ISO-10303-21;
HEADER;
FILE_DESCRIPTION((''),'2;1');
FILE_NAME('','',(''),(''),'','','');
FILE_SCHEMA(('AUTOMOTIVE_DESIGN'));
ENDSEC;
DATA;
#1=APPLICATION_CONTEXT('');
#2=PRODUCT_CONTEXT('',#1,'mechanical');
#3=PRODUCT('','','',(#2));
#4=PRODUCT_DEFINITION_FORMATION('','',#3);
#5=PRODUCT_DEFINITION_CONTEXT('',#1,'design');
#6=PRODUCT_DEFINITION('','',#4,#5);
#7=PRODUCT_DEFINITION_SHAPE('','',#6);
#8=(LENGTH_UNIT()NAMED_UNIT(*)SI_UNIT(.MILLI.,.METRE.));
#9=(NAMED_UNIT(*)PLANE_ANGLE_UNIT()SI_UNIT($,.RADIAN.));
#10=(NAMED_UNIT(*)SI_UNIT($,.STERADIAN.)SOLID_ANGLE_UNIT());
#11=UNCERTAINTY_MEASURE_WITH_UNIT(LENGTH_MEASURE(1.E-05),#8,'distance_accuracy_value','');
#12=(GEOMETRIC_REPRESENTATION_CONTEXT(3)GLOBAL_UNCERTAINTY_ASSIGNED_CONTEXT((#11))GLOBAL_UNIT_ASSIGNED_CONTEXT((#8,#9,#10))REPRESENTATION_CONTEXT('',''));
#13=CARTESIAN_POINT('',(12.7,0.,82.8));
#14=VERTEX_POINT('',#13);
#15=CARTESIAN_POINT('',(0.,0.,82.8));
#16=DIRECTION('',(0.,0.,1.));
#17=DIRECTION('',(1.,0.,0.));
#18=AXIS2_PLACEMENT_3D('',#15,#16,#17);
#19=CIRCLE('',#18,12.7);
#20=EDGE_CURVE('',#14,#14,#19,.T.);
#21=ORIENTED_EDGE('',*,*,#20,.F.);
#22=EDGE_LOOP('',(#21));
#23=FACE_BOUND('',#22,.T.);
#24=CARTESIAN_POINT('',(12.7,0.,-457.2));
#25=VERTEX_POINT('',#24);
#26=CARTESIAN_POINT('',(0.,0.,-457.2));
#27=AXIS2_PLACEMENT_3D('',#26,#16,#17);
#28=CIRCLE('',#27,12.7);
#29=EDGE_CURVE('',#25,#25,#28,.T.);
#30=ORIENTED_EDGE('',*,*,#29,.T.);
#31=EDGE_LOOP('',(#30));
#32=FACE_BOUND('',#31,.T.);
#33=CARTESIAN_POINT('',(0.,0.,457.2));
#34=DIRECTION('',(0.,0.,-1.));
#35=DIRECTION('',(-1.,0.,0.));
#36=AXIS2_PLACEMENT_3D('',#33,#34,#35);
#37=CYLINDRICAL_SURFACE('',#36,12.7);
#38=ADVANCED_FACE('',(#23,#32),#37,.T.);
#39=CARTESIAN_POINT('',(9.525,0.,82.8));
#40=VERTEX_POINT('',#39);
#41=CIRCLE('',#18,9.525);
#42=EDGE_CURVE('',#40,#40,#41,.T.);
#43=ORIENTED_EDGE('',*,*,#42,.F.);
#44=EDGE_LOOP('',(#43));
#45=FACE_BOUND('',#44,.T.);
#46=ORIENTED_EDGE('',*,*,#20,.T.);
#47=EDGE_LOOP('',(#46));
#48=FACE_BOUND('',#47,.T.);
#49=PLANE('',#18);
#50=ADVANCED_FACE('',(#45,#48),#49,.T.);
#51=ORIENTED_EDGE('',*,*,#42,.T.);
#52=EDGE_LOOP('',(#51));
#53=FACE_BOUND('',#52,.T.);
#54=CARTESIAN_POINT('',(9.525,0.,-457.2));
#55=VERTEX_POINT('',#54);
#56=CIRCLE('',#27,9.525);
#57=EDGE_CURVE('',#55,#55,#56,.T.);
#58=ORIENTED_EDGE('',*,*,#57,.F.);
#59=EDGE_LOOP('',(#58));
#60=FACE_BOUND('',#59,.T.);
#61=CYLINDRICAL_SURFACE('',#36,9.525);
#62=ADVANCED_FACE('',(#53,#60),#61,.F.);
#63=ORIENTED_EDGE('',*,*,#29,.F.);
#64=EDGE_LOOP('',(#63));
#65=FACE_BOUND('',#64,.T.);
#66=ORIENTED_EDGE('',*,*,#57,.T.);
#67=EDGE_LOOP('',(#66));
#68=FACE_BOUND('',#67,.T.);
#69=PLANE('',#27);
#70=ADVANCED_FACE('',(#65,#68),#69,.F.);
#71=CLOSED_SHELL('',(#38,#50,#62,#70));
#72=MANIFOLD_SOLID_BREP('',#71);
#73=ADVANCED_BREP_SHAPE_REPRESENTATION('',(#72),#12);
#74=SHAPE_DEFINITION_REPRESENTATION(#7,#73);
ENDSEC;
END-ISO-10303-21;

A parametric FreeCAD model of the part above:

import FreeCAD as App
import Part
import Sketcher
from FreeCAD import Vector
Q = App.Units.Quantity

doc = App.newDocument("Part")
body = doc.addObject("PartDesign::Body", "Body")

# Sketch on XY plane
sketch1 = body.newObject("Sketcher::SketchObject", "Sketch")
sketch1.AttachmentSupport = (doc.getObject("XY_Plane"), [""])
sketch1.MapMode = "FlatFace"
sketch1.addGeometry([
    Part.Circle(Vector(0, 0, 0), Vector(0, 0, 1), 13),
    Part.Circle(Vector(0, 0, 0), Vector(0, 0, 1), 10),
], False)
sketch1.addConstraint([
    Sketcher.Constraint("Coincident", 0, 3, -1, 1),
    Sketcher.Constraint("Coincident", 1, 3, -1, 1),
    Sketcher.Constraint("Diameter", 0, Q("1 in")),
    Sketcher.Constraint("Diameter", 1, Q("0.75 in")),
])
pad1 = body.newObject("PartDesign::Pad", "Pad")
pad1.Profile = sketch1
pad1.Type = "TwoLengths"
pad1.Length = Q("18 in")
pad1.Length2 = Q("18 in")

# Sketch on XY plane
sketch2 = body.newObject("Sketcher::SketchObject", "Sketch001")
sketch2.AttachmentSupport = (doc.getObject("XY_Plane"), [""])
sketch2.MapMode = "FlatFace"
sketch2.AttachmentOffset = App.Placement(Vector(0, 0, 18 * 25.4), App.Rotation())
sketch2.addGeometry(Part.Circle(Vector(0, 0, 0), Vector(0, 0, 1), 13), False)
sketch2.addConstraint([
    Sketcher.Constraint("Coincident", 0, 3, -1, 1),
    Sketcher.Constraint("Diameter", 0, Q("1 in")),
])
pocket1 = body.newObject("PartDesign::Pocket", "Pocket")
pocket1.Profile = sketch2
pocket1.Length = 374.4

doc.recompute()
